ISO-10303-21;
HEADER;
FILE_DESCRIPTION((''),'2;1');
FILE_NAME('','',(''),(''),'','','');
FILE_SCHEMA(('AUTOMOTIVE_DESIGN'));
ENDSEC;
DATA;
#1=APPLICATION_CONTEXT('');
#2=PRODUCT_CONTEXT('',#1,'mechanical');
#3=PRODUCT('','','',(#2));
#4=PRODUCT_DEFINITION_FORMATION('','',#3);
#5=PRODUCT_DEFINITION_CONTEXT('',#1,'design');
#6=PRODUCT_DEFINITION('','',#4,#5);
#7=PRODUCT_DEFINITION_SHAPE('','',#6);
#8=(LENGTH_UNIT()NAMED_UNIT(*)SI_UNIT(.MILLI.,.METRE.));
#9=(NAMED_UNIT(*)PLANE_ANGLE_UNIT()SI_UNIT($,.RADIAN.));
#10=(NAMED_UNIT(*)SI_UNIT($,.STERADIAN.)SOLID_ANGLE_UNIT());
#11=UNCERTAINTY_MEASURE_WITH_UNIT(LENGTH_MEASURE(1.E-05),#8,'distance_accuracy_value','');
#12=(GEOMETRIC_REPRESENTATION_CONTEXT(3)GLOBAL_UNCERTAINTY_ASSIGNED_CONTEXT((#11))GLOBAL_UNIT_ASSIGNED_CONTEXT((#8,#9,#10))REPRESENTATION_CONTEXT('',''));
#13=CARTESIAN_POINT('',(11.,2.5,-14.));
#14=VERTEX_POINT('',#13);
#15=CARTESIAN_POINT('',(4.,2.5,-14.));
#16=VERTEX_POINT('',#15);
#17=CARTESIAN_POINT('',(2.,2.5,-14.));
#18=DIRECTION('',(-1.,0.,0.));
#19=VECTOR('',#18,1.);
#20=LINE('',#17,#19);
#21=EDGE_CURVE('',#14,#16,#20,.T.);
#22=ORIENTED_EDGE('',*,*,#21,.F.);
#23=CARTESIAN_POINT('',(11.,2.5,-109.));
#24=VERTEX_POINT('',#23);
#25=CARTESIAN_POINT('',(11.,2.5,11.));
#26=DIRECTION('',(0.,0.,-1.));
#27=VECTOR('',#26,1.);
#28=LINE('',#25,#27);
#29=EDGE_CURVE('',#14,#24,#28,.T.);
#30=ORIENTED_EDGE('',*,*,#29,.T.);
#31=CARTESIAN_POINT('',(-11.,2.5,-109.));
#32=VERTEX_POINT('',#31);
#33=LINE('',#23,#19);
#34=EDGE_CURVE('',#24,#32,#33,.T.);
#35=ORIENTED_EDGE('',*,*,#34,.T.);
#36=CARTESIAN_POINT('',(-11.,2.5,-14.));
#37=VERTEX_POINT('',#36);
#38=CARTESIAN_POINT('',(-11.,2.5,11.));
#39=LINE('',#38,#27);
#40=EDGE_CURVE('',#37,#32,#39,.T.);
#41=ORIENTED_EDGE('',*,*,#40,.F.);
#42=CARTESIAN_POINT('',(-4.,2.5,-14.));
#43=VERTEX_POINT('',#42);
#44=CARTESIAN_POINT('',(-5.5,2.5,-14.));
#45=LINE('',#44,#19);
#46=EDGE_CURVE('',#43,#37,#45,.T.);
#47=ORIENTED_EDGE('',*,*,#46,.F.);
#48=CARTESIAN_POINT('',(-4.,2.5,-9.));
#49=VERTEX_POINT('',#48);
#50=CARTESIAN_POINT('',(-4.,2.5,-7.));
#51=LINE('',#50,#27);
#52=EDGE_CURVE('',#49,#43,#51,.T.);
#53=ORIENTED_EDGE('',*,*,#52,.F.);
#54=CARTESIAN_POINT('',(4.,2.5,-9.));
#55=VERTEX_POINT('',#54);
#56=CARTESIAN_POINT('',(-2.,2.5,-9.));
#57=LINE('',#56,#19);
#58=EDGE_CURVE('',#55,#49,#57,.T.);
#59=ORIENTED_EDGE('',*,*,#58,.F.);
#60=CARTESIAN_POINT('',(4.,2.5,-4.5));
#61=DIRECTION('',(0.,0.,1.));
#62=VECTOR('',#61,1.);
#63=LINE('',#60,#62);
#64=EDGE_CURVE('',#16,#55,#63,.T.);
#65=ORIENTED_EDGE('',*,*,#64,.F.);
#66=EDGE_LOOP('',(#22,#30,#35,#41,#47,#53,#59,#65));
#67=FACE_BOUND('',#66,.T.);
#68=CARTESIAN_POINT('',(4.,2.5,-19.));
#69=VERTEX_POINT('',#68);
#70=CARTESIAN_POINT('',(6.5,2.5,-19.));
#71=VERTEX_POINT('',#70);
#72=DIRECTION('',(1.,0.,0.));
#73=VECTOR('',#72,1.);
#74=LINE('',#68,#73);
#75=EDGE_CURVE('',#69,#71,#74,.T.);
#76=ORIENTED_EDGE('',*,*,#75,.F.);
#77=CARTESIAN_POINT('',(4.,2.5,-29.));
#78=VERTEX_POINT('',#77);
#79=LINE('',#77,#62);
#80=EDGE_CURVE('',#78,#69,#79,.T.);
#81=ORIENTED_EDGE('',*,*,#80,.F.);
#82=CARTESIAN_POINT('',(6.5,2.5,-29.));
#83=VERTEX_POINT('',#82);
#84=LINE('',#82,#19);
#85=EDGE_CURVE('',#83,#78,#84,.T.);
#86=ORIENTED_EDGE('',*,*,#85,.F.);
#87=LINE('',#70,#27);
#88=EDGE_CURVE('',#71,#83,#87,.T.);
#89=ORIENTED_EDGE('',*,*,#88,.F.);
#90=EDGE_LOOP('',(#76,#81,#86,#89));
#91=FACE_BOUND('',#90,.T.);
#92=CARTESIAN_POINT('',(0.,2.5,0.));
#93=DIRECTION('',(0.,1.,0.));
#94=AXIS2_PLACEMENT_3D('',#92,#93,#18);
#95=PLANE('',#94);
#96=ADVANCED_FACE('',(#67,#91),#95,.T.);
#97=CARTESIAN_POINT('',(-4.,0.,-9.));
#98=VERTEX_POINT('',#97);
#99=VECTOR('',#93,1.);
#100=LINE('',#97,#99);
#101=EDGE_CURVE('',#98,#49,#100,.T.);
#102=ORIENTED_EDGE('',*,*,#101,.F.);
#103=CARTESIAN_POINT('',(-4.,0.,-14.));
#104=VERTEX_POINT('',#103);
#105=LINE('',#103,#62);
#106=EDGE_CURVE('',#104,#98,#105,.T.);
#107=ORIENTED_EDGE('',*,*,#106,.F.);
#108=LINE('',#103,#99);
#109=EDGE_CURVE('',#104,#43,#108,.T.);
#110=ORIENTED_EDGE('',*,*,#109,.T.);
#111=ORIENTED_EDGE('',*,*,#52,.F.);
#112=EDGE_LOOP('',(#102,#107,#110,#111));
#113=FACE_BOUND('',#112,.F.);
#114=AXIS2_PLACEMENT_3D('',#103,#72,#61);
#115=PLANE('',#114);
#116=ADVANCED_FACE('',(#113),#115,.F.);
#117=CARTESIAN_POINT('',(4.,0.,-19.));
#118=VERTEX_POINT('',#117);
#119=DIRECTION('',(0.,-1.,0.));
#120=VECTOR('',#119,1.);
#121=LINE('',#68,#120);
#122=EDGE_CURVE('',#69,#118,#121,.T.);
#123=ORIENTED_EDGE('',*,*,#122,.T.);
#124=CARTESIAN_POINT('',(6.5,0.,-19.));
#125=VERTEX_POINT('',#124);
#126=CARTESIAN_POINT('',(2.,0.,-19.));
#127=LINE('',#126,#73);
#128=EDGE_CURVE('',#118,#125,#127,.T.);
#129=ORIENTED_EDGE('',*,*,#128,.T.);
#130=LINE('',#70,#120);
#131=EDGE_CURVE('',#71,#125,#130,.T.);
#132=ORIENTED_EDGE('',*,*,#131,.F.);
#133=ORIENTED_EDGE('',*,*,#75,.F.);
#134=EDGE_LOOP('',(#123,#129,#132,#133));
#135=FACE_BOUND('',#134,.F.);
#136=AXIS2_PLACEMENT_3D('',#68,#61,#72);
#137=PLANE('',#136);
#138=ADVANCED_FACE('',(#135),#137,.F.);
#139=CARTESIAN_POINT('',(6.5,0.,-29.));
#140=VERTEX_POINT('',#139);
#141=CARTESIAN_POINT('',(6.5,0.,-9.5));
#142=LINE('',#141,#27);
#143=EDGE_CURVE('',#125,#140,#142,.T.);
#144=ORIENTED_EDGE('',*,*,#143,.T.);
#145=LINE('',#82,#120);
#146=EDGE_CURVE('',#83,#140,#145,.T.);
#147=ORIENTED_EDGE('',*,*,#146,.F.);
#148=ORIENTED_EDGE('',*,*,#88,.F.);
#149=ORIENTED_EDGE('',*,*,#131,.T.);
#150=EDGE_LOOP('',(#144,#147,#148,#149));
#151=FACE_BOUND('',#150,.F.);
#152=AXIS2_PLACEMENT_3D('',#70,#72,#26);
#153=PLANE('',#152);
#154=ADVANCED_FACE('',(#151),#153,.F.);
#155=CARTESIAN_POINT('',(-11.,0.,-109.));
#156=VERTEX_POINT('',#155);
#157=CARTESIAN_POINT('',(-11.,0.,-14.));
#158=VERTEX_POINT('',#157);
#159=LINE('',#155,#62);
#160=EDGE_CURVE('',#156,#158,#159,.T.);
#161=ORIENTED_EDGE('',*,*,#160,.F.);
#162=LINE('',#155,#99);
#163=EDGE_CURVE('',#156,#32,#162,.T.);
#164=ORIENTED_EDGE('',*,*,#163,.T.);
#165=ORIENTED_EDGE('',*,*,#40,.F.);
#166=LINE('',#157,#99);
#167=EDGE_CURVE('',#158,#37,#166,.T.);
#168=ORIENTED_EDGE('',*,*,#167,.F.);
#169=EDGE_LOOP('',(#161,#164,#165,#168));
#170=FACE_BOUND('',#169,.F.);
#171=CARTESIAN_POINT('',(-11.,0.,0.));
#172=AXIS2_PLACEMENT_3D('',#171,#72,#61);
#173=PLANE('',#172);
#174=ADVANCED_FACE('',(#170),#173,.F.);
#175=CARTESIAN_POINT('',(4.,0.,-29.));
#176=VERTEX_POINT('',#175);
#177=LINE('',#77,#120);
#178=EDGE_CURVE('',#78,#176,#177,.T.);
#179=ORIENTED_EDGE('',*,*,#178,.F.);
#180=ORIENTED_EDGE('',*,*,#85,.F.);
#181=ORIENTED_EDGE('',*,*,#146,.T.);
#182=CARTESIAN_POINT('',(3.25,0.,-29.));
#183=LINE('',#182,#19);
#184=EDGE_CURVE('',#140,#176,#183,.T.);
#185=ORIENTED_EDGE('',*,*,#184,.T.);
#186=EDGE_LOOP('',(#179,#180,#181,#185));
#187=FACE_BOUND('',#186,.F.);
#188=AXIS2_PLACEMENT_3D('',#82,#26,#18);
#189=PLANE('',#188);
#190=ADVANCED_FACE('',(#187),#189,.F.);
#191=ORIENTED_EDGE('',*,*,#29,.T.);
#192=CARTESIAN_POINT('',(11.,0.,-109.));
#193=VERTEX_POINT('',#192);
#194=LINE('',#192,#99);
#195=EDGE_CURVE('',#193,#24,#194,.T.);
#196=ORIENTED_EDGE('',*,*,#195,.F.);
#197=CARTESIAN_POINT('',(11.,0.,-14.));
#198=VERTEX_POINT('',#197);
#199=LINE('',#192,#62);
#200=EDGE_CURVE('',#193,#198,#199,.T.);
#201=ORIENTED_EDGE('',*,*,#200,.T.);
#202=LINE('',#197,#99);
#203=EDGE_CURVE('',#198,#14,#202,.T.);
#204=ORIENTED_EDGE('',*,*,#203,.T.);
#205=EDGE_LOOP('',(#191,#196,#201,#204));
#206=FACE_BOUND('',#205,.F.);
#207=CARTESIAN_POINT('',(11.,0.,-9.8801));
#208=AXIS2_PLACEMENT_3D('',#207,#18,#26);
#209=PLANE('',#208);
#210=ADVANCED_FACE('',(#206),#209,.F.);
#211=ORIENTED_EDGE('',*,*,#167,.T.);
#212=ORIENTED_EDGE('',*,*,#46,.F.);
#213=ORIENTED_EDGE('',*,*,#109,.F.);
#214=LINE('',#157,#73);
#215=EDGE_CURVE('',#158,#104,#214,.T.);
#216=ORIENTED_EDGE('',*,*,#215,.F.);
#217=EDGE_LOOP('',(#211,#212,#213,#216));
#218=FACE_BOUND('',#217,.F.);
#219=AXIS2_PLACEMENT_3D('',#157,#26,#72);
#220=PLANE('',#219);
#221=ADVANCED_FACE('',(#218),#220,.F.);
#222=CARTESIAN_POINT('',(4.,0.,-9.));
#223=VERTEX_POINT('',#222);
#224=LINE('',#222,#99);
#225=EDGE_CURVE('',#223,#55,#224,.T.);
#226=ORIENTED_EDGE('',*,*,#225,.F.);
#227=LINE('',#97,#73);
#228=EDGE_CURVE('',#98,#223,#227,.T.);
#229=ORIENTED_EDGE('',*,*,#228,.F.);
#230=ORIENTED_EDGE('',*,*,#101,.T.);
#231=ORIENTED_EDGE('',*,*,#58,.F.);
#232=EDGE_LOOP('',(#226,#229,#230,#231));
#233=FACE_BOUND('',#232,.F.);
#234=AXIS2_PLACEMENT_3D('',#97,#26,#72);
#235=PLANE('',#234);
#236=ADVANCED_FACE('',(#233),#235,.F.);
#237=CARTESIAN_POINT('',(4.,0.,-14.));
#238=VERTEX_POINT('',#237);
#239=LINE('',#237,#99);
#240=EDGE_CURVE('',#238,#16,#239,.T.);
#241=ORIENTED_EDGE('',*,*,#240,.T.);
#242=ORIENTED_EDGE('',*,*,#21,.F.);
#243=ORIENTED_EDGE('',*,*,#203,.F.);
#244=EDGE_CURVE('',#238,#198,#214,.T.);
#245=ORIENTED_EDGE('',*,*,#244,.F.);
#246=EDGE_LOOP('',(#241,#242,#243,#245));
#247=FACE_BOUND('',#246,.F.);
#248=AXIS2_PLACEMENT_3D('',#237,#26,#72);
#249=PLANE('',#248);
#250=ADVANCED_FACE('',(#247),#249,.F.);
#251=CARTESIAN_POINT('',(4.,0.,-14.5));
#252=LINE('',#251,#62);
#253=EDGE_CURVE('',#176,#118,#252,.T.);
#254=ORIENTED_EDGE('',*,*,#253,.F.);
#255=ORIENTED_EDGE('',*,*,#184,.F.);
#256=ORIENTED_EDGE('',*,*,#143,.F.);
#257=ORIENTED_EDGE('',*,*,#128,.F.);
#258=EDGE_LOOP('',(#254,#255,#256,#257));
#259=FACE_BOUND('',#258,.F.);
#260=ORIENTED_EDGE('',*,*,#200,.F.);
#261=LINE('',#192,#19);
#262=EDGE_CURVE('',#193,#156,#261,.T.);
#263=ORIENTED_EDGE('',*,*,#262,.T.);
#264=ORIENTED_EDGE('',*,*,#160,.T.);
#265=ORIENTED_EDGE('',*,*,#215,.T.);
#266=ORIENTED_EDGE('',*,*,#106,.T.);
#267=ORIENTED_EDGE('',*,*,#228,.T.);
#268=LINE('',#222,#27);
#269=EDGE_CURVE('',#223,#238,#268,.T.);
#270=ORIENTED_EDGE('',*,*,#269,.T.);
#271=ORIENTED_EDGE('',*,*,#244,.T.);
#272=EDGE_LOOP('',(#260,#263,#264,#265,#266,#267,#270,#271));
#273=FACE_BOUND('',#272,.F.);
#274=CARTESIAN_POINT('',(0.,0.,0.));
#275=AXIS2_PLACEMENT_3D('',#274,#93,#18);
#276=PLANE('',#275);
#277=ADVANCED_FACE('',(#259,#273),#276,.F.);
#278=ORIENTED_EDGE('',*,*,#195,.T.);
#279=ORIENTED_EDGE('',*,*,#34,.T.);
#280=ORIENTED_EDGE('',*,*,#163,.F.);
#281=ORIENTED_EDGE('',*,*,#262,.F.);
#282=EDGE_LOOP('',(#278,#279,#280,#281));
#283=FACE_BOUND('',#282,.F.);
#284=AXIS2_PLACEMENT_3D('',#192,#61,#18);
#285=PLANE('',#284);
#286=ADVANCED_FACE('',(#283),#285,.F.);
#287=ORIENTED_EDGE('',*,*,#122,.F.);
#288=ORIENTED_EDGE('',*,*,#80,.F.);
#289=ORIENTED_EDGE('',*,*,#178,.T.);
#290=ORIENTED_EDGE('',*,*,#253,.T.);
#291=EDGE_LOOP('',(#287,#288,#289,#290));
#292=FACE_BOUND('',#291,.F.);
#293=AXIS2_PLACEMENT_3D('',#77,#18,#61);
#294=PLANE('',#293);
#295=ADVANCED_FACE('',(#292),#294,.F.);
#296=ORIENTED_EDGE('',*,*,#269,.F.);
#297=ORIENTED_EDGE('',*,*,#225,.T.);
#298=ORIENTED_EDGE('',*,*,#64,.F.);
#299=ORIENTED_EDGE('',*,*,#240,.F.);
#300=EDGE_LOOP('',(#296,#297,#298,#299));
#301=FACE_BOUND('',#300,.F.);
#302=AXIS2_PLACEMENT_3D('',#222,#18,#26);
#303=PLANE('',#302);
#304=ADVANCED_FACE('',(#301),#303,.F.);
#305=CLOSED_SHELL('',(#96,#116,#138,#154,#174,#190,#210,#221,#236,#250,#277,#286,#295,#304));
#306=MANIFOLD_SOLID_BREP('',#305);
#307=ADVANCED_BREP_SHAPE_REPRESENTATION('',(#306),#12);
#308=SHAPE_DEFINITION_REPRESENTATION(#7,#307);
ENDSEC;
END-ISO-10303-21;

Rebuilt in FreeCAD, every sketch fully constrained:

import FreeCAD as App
import Part
import Sketcher

V = App.Vector
Q = App.Units.Quantity

doc = App.newDocument("Part")
body = doc.addObject("PartDesign::Body", "Body")

sketch1 = body.newObject("Sketcher::SketchObject", "Sketch")
sketch1.AttachmentSupport = (doc.getObject("XZ_Plane"), [""])
sketch1.MapMode = "FlatFace"
sketch1.addGeometry(Part.LineSegment(V(-11, 11, 0), V(11, 11, 0)), False)
sketch1.addGeometry(Part.LineSegment(V(11, 11, 0), V(11, -109, 0)), False)
sketch1.addGeometry(Part.LineSegment(V(11, -109, 0), V(-11, -109, 0)), False)
sketch1.addGeometry(Part.LineSegment(V(-11, -109, 0), V(-11, 11, 0)), False)
sketch1.addConstraint(Sketcher.Constraint("Coincident", 0, 2, 1, 1))
sketch1.addConstraint(Sketcher.Constraint("Coincident", 1, 2, 2, 1))
sketch1.addConstraint(Sketcher.Constraint("Coincident", 2, 2, 3, 1))
sketch1.addConstraint(Sketcher.Constraint("Coincident", 3, 2, 0, 1))
sketch1.addConstraint(Sketcher.Constraint("Horizontal", 0))
sketch1.addConstraint(Sketcher.Constraint("Vertical", 1))
sketch1.addConstraint(Sketcher.Constraint("Horizontal", 2))
sketch1.addConstraint(Sketcher.Constraint("Vertical", 3))
sketch1.addConstraint(Sketcher.Constraint("DistanceX", 0, 1, 0, 2, Q("22 mm")))
sketch1.addConstraint(Sketcher.Constraint("DistanceY", 1, 2, 1, 1, Q("120 mm")))
sketch1.addConstraint(Sketcher.Constraint("DistanceX", -1, 1, 0, 2, Q("11 mm")))
sketch1.addConstraint(Sketcher.Constraint("DistanceY", -1, 1, 0, 2, Q("11 mm")))
pad1 = body.newObject("PartDesign::Pad", "Pad")
pad1.Profile = sketch1
pad1.Length = 2.5
pad1.Reversed = True

sketch2 = body.newObject("Sketcher::SketchObject", "Sketch001")
sketch2.AttachmentSupport = (doc.getObject("XZ_Plane"), [""])
sketch2.MapMode = "FlatFace"
sketch2.addGeometry(Part.LineSegment(V(11, -14, 0), V(11, 11, 0)), False)
sketch2.addGeometry(Part.LineSegment(V(11, 11, 0), V(-11, 11, 0)), False)
sketch2.addGeometry(Part.LineSegment(V(-11, 11, 0), V(-11, -14, 0)), False)
sketch2.addGeometry(Part.LineSegment(V(-11, -14, 0), V(-4, -14, 0)), False)
sketch2.addGeometry(Part.LineSegment(V(-4, -14, 0), V(-4, -9, 0)), False)
sketch2.addGeometry(Part.LineSegment(V(-4, -9, 0), V(4, -9, 0)), False)
sketch2.addGeometry(Part.LineSegment(V(4, -9, 0), V(4, -14, 0)), False)
sketch2.addGeometry(Part.LineSegment(V(4, -14, 0), V(11, -14, 0)), False)
sketch2.addConstraint(Sketcher.Constraint("Coincident", 0, 2, 1, 1))
sketch2.addConstraint(Sketcher.Constraint("Coincident", 1, 2, 2, 1))
sketch2.addConstraint(Sketcher.Constraint("Coincident", 2, 2, 3, 1))
sketch2.addConstraint(Sketcher.Constraint("Coincident", 3, 2, 4, 1))
sketch2.addConstraint(Sketcher.Constraint("Coincident", 4, 2, 5, 1))
sketch2.addConstraint(Sketcher.Constraint("Coincident", 5, 2, 6, 1))
sketch2.addConstraint(Sketcher.Constraint("Coincident", 6, 2, 7, 1))
sketch2.addConstraint(Sketcher.Constraint("Coincident", 7, 2, 0, 1))
sketch2.addConstraint(Sketcher.Constraint("Vertical", 0))
sketch2.addConstraint(Sketcher.Constraint("Horizontal", 1))
sketch2.addConstraint(Sketcher.Constraint("Vertical", 2))
sketch2.addConstraint(Sketcher.Constraint("Horizontal", 3))
sketch2.addConstraint(Sketcher.Constraint("Vertical", 4))
sketch2.addConstraint(Sketcher.Constraint("Horizontal", 5))
sketch2.addConstraint(Sketcher.Constraint("Vertical", 6))
sketch2.addConstraint(Sketcher.Constraint("Horizontal", 7))
sketch2.addConstraint(Sketcher.Constraint("Symmetric", 3, 2, 6, 2, -2))
sketch2.addConstraint(Sketcher.Constraint("Equal", 3, 7))
sketch2.addConstraint(Sketcher.Constraint("DistanceX", 5, 1, 5, 2, Q("8 mm")))
sketch2.addConstraint(Sketcher.Constraint("DistanceY", 0, 1, 0, 2, Q("25 mm")))
sketch2.addConstraint(Sketcher.Constraint("DistanceY", 4, 1, 4, 2, Q("5 mm")))
sketch2.addConstraint(Sketcher.Constraint("DistanceX", 1, 2, 1, 1, Q("22 mm")))
sketch2.addConstraint(Sketcher.Constraint("DistanceY", -1, 1, 0, 2, Q("11 mm")))
pocket1 = body.newObject("PartDesign::Pocket", "Pocket")
pocket1.Profile = sketch2
pocket1.Type = "ThroughAll"

sketch3 = body.newObject("Sketcher::SketchObject", "Sketch002")
sketch3.AttachmentSupport = (doc.getObject("XZ_Plane"), [""])
sketch3.MapMode = "FlatFace"
sketch3.AttachmentOffset = App.Placement(V(0, 0, -2.5), App.Rotation())
sketch3.addGeometry(Part.LineSegment(V(4, -29, 0), V(4, -19, 0)), False)
sketch3.addGeometry(Part.LineSegment(V(4, -19, 0), V(6.5, -19, 0)), False)
sketch3.addGeometry(Part.LineSegment(V(6.5, -19, 0), V(6.5, -29, 0)), False)
sketch3.addGeometry(Part.LineSegment(V(6.5, -29, 0), V(4, -29, 0)), False)
sketch3.addConstraint(Sketcher.Constraint("Coincident", 0, 2, 1, 1))
sketch3.addConstraint(Sketcher.Constraint("Coincident", 1, 2, 2, 1))
sketch3.addConstraint(Sketcher.Constraint("Coincident", 2, 2, 3, 1))
sketch3.addConstraint(Sketcher.Constraint("Coincident", 3, 2, 0, 1))
sketch3.addConstraint(Sketcher.Constraint("Vertical", 0))
sketch3.addConstraint(Sketcher.Constraint("Horizontal", 1))
sketch3.addConstraint(Sketcher.Constraint("Vertical", 2))
sketch3.addConstraint(Sketcher.Constraint("Horizontal", 3))
sketch3.addConstraint(Sketcher.Constraint("DistanceY", 0, 1, 0, 2, Q("10 mm")))
sketch3.addConstraint(Sketcher.Constraint("DistanceX", 1, 1, 1, 2, Q("2.5 mm")))
sketch3.addConstraint(Sketcher.Constraint("DistanceX", -1, 1, 0, 2, Q("4 mm")))
sketch3.addConstraint(Sketcher.Constraint("DistanceY", 0, 2, -1, 1, Q("19 mm")))
pocket2 = body.newObject("PartDesign::Pocket", "Pocket001")
pocket2.Profile = sketch3
pocket2.Type = "ThroughAll"
pocket2.Reversed = True

doc.recompute()
